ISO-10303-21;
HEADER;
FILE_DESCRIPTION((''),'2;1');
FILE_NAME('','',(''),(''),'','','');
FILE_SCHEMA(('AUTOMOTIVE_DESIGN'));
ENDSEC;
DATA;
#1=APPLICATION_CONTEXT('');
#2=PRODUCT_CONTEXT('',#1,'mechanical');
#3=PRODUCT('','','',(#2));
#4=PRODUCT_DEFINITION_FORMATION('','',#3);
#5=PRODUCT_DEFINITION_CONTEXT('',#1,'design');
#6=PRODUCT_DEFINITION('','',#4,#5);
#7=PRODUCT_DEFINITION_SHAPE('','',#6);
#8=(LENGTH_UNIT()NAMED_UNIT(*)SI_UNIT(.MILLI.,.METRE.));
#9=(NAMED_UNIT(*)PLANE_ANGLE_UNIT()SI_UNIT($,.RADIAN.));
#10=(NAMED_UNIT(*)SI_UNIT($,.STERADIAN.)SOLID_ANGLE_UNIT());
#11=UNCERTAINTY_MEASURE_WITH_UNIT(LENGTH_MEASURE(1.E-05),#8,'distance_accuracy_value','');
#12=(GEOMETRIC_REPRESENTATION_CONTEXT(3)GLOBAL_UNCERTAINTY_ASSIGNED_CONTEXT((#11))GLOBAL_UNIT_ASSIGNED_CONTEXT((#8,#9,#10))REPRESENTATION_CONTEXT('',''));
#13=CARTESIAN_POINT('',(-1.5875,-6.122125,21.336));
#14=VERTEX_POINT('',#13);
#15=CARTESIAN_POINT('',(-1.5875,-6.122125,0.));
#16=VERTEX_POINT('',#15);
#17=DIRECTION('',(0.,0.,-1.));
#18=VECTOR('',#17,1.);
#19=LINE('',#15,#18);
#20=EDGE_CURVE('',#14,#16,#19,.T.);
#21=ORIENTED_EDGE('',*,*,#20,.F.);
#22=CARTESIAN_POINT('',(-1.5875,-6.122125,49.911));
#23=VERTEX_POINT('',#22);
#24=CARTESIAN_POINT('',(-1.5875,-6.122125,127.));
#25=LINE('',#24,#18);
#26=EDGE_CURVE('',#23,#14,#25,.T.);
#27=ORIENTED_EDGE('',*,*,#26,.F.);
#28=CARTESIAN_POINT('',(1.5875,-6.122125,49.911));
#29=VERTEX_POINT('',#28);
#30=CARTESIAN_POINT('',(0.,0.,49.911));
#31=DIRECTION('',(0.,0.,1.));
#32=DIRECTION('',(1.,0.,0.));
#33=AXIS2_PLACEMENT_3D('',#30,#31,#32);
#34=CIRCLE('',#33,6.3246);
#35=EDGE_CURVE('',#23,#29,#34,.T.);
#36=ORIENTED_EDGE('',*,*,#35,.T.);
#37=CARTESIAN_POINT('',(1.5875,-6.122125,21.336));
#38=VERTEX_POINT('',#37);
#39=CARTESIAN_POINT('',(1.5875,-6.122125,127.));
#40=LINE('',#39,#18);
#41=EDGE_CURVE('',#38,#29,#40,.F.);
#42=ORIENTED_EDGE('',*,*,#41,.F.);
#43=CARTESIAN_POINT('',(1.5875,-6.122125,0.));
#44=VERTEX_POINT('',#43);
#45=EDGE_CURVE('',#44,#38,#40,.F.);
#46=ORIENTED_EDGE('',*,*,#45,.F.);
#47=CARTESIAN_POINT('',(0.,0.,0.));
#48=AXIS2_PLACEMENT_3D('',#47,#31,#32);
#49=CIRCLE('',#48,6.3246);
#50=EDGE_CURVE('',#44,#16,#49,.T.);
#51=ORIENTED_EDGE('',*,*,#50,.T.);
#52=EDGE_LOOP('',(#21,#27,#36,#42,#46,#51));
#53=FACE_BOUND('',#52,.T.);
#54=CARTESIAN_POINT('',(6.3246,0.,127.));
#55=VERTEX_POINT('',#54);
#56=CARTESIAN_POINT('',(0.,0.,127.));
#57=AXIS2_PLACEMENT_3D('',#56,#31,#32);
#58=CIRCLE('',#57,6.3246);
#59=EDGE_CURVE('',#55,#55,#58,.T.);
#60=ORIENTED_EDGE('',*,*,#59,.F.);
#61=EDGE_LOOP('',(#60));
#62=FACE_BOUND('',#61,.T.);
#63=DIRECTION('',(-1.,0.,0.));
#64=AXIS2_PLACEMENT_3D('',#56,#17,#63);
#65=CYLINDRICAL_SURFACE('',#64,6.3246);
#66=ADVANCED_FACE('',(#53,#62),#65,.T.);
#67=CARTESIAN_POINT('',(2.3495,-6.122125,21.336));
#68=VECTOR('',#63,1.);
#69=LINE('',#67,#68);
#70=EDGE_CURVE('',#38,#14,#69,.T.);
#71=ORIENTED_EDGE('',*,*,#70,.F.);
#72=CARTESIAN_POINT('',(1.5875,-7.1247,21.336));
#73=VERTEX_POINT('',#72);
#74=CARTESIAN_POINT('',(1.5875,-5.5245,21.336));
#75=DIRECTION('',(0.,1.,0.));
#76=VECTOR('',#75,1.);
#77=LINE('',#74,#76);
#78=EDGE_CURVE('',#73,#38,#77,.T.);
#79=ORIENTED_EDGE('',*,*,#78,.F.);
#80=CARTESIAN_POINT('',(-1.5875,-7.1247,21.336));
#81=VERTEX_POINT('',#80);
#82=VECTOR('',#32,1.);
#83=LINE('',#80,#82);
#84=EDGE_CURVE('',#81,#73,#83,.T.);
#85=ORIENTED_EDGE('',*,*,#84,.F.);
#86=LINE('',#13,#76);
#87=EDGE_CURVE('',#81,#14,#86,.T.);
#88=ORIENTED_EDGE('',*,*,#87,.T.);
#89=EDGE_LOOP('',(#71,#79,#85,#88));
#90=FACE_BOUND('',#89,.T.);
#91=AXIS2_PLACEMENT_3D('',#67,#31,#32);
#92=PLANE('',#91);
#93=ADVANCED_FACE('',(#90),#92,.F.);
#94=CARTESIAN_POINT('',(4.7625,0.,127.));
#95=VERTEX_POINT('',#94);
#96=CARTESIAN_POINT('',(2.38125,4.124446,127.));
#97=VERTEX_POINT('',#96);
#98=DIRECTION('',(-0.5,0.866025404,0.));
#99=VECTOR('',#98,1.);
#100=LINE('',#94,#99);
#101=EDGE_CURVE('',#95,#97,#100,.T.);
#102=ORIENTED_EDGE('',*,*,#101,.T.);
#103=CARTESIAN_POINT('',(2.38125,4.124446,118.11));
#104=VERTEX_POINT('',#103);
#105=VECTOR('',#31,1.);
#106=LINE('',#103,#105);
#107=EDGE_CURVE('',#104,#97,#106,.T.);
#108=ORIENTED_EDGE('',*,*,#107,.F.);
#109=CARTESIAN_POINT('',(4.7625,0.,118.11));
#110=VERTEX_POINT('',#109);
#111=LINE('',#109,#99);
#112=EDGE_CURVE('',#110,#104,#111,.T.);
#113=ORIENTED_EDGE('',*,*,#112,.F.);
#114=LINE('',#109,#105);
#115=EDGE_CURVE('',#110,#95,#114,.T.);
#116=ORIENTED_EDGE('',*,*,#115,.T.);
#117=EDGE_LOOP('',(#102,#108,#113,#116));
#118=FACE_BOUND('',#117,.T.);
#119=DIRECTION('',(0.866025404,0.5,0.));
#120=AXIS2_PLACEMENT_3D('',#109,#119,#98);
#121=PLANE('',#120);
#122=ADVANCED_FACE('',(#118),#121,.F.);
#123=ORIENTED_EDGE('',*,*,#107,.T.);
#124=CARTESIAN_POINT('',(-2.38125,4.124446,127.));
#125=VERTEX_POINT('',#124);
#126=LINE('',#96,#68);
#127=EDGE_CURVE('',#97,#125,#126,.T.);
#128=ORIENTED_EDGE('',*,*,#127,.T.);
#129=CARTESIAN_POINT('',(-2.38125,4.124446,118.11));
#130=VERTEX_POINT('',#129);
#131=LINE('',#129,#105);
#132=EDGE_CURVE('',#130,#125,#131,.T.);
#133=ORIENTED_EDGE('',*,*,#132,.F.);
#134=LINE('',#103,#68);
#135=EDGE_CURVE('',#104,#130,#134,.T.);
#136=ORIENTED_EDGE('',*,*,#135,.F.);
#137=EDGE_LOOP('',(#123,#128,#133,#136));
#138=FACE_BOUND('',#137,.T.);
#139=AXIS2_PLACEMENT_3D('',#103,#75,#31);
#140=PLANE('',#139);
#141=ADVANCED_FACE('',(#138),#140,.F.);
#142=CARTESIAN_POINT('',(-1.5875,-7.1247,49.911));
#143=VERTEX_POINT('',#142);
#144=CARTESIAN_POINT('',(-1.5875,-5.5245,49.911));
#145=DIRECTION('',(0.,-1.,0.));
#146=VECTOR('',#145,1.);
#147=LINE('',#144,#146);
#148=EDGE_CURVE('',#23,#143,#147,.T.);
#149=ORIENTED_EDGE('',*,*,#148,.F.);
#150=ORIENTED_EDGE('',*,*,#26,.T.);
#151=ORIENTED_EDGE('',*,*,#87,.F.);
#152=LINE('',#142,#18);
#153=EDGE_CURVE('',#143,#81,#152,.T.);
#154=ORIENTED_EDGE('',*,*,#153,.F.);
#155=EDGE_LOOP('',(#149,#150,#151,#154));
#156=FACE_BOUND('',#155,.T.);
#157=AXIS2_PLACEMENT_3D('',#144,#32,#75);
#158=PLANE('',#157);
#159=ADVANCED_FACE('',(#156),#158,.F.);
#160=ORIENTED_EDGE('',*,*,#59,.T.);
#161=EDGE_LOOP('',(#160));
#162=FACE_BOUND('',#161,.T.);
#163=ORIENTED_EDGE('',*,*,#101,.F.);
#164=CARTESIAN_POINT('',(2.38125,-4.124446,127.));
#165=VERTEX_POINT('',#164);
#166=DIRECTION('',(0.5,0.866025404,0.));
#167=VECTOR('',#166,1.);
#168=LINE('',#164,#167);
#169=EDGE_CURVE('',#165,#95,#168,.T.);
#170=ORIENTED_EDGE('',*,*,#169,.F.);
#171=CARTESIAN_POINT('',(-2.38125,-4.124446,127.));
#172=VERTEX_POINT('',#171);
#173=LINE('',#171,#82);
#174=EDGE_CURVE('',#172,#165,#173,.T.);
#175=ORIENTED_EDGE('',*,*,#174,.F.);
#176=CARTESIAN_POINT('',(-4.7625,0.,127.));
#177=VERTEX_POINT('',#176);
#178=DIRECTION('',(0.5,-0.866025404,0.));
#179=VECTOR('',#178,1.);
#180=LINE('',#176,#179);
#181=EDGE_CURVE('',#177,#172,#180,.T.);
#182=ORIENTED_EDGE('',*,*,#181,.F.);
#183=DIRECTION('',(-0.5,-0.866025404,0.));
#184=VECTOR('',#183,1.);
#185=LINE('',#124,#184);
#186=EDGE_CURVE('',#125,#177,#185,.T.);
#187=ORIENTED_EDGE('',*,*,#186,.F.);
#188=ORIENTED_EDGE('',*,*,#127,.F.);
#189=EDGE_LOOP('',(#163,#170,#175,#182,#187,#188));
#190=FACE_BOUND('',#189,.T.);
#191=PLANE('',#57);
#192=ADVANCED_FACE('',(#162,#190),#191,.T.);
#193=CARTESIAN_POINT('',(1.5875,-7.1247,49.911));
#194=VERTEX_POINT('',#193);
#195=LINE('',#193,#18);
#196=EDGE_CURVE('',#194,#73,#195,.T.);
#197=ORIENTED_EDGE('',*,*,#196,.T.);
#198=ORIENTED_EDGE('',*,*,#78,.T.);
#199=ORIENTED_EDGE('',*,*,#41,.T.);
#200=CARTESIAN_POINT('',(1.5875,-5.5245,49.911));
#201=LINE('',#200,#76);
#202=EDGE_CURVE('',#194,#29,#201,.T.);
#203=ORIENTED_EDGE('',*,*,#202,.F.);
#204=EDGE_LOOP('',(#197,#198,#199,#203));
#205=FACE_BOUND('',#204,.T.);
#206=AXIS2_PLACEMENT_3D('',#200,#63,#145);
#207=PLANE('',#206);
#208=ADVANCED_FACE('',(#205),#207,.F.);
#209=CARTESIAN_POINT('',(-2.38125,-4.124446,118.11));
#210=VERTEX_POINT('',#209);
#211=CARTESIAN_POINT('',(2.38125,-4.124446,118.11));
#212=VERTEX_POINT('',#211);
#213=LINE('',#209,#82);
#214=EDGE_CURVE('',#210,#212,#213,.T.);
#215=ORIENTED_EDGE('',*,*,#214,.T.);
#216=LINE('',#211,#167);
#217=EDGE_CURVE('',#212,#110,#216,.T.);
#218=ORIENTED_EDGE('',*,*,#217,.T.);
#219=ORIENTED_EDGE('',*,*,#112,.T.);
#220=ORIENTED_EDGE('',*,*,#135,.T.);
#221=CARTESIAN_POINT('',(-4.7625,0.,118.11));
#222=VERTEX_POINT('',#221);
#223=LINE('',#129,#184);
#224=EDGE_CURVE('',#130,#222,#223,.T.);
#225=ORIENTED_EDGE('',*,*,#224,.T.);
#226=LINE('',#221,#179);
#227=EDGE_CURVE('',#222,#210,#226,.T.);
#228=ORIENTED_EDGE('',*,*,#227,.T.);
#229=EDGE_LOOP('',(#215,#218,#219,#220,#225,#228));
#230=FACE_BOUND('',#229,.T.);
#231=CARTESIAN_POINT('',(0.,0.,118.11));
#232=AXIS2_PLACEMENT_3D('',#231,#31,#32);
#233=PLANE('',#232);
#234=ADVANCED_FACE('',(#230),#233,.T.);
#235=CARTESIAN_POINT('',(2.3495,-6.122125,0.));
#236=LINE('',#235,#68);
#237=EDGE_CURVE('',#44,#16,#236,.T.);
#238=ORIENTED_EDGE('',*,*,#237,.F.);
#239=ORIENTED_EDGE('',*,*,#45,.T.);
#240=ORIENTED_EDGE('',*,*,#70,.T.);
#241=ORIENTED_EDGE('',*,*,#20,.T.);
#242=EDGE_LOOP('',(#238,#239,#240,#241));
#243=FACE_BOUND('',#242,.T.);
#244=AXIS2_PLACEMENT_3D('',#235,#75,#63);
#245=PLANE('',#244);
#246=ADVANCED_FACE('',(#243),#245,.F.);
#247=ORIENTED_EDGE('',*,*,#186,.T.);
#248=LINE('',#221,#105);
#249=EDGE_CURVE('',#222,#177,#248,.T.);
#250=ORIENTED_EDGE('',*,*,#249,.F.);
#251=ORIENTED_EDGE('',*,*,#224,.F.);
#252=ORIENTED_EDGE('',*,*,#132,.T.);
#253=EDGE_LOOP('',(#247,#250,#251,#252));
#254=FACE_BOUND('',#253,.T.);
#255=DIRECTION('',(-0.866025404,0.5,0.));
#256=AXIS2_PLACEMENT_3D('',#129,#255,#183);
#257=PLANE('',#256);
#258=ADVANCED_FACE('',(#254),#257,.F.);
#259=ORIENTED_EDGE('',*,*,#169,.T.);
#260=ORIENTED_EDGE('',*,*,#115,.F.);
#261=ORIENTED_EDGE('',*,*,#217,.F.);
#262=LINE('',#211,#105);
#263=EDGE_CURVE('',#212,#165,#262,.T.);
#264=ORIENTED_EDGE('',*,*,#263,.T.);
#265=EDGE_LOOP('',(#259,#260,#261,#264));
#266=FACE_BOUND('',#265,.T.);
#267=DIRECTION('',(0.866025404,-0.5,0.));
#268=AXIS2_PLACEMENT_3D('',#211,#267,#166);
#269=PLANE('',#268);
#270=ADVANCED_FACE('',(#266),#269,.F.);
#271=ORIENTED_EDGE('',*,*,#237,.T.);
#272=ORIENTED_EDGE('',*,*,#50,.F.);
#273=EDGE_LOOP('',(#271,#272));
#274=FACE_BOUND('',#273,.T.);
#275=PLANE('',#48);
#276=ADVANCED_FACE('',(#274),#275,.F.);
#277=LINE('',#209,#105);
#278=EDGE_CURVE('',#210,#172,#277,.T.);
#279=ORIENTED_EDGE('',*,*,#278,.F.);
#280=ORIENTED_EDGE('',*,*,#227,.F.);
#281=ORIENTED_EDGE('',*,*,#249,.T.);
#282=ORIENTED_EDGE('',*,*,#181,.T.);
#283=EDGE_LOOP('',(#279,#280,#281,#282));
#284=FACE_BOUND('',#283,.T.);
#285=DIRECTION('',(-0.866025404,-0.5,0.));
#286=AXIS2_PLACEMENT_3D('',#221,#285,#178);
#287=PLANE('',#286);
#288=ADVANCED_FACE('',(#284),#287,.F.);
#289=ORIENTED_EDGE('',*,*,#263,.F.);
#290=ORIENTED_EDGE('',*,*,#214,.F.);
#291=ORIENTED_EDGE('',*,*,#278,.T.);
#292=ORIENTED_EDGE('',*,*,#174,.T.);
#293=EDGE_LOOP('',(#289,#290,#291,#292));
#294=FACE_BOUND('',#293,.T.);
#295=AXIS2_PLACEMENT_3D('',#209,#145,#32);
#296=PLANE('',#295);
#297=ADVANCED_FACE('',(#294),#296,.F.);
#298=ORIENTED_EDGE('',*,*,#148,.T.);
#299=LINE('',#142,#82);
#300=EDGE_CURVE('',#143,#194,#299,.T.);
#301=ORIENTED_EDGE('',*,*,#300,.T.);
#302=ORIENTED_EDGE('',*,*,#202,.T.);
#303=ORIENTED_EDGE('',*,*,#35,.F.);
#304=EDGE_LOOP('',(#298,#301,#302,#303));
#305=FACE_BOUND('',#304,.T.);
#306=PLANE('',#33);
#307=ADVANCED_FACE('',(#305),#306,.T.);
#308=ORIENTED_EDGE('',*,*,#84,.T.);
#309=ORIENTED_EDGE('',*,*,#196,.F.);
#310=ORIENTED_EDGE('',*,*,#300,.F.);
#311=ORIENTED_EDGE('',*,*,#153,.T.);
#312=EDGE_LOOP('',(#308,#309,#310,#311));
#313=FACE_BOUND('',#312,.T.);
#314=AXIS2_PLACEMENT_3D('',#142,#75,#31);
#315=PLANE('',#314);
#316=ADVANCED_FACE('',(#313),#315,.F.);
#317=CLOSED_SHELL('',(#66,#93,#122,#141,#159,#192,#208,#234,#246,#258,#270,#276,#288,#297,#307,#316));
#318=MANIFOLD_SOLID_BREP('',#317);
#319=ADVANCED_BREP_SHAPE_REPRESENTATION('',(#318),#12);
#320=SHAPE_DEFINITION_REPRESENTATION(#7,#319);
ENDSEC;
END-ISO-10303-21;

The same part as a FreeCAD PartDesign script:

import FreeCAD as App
import Part
import Sketcher
from FreeCAD import Vector
Q = App.Units.Quantity

doc = App.newDocument("Part")
body = doc.addObject("PartDesign::Body", "Body")

# Sketch on XY plane
sketch1 = body.newObject("Sketcher::SketchObject", "Sketch")
sketch1.AttachmentSupport = (doc.getObject("XY_Plane"), [""])
sketch1.MapMode = "FlatFace"
sketch1.addGeometry(Part.Circle(Vector(0, 0, 0), Vector(0, 0, 1), 6), False)
sketch1.addConstraint([
    Sketcher.Constraint("Coincident", 0, 3, -1, 1),
    Sketcher.Constraint("Diameter", 0, Q("0.498 in")),
])
pad1 = body.newObject("PartDesign::Pad", "Pad")
pad1.Profile = sketch1
pad1.Length = Q("5 in")

# Sketch on XY plane
sketch2 = body.newObject("Sketcher::SketchObject", "Sketch001")
sketch2.AttachmentSupport = (doc.getObject("XY_Plane"), [""])
sketch2.MapMode = "FlatFace"
sketch2.addGeometry([
    Part.LineSegment(Vector(-1.6, -5.5, 0), Vector(-1.6, -7.1, 0)),
    Part.LineSegment(Vector(-1.6, -7.1, 0), Vector(1.6, -7.1, 0)),
    Part.LineSegment(Vector(1.6, -7.1, 0), Vector(1.6, -5.5, 0)),
    Part.LineSegment(Vector(1.6, -5.5, 0), Vector(-1.6, -5.5, 0)),
], False)
sketch2.addConstraint([
    Sketcher.Constraint("Coincident", 0, 2, 1, 1),
    Sketcher.Constraint("Coincident", 1, 2, 2, 1),
    Sketcher.Constraint("Coincident", 2, 2, 3, 1),
    Sketcher.Constraint("Coincident", 3, 2, 0, 1),
    Sketcher.Constraint("Vertical", 0),
    Sketcher.Constraint("Horizontal", 1),
    Sketcher.Constraint("Vertical", 2),
    Sketcher.Constraint("Horizontal", 3),
    Sketcher.Constraint("DistanceX", 1, 1, 1, 2, Q("0.125 in")),
    Sketcher.Constraint("DistanceY", 0, 2, 0, 1, Q("0.063 in")),
    Sketcher.Constraint("DistanceX", 0, 2, -1, 1, Q("0.0625 in")),
    Sketcher.Constraint("DistanceY", 0, 2, -1, 1, Q("0.2805 in")),
])
pad2 = body.newObject("PartDesign::Pad", "Pad001")
pad2.Profile = sketch2
pad2.Length = Q("1.965 in")

# Sketch on YZ plane
sketch3 = body.newObject("Sketcher::SketchObject", "Sketch002")
sketch3.AttachmentSupport = (doc.getObject("YZ_Plane"), [""])
sketch3.MapMode = "FlatFace"
sketch3.AttachmentOffset = App.Placement(Vector(0, 0, -0.0625 * 25.4), App.Rotation())
sketch3.addGeometry([
    Part.LineSegment(Vector(-6.1, 0, 0), Vector(-7.1, 0, 0)),
    Part.LineSegment(Vector(-7.1, 0, 0), Vector(-7.1, 21.3, 0)),
    Part.LineSegment(Vector(-7.1, 21.3, 0), Vector(-6.1, 21.3, 0)),
    Part.LineSegment(Vector(-6.1, 21.3, 0), Vector(-6.1, 0, 0)),
], False)
sketch3.addConstraint([
    Sketcher.Constraint("Coincident", 0, 2, 1, 1),
    Sketcher.Constraint("Coincident", 1, 2, 2, 1),
    Sketcher.Constraint("Coincident", 2, 2, 3, 1),
    Sketcher.Constraint("Coincident", 3, 2, 0, 1),
    Sketcher.Constraint("Horizontal", 0),
    Sketcher.Constraint("Vertical", 1),
    Sketcher.Constraint("Horizontal", 2),
    Sketcher.Constraint("Vertical", 3),
    Sketcher.Constraint("PointOnObject", 0, 2, -1),
    Sketcher.Constraint("DistanceY", 1, 1, 1, 2, Q("0.84 in")),
    Sketcher.Constraint("DistanceX", 0, 2, -1, 1, Q("0.2805 in")),
    Sketcher.Constraint("DistanceX", 0, 2, 0, 1, 1.002575),
])
pocket1 = body.newObject("PartDesign::Pocket", "Pocket")
pocket1.Profile = sketch3
pocket1.Length = Q("0.155 in")
pocket1.Reversed = True

# Sketch on XY plane
sketch4 = body.newObject("Sketcher::SketchObject", "Sketch003")
sketch4.AttachmentSupport = (doc.getObject("XY_Plane"), [""])
sketch4.MapMode = "FlatFace"
sketch4.AttachmentOffset = App.Placement(Vector(0, 0, 5 * 25.4), App.Rotation())
sketch4.addGeometry([
    Part.LineSegment(Vector(4.8, 0, 0), Vector(2.4, 4.1, 0)),  # 0
    Part.LineSegment(Vector(2.4, 4.1, 0), Vector(-2.4, 4.1, 0)),  # 1
    Part.LineSegment(Vector(-2.4, 4.1, 0), Vector(-4.8, 0, 0)),  # 2
    Part.LineSegment(Vector(-4.8, 0, 0), Vector(-2.4, -4.1, 0)),  # 3
    Part.LineSegment(Vector(-2.4, -4.1, 0), Vector(2.4, -4.1, 0)),  # 4
    Part.LineSegment(Vector(2.4, -4.1, 0), Vector(4.8, 0, 0)),  # 5
], False)
sketch4.addConstraint([
    Sketcher.Constraint("Coincident", 0, 2, 1, 1),
    Sketcher.Constraint("Coincident", 1, 2, 2, 1),
    Sketcher.Constraint("Coincident", 2, 2, 3, 1),
    Sketcher.Constraint("Coincident", 3, 2, 4, 1),
    Sketcher.Constraint("Coincident", 4, 2, 5, 1),
    Sketcher.Constraint("Coincident", 5, 2, 0, 1),
    Sketcher.Constraint("Horizontal", 1),
    Sketcher.Constraint("Horizontal", 4),
    Sketcher.Constraint("Symmetric", 0, 2, 3, 2, -1, 1),
    Sketcher.Constraint("Symmetric", 2, 2, 5, 2, -1, 1),
    Sketcher.Constraint("PointOnObject", 2, 2, -1),
    Sketcher.Constraint("Parallel", 2, 5),
    Sketcher.Constraint("Vertical", 1, 2, 3, 2),
    Sketcher.Constraint("Angle", 0, Q("120 deg")),
    Sketcher.Constraint("DistanceX", 1, 2, 1, 1, Q("0.1875 in")),
    Sketcher.Constraint("Distance", 0, Q("0.1875 in")),
])
pocket2 = body.newObject("PartDesign::Pocket", "Pocket001")
pocket2.Profile = sketch4
pocket2.Length = Q("0.35 in")

doc.recompute()
